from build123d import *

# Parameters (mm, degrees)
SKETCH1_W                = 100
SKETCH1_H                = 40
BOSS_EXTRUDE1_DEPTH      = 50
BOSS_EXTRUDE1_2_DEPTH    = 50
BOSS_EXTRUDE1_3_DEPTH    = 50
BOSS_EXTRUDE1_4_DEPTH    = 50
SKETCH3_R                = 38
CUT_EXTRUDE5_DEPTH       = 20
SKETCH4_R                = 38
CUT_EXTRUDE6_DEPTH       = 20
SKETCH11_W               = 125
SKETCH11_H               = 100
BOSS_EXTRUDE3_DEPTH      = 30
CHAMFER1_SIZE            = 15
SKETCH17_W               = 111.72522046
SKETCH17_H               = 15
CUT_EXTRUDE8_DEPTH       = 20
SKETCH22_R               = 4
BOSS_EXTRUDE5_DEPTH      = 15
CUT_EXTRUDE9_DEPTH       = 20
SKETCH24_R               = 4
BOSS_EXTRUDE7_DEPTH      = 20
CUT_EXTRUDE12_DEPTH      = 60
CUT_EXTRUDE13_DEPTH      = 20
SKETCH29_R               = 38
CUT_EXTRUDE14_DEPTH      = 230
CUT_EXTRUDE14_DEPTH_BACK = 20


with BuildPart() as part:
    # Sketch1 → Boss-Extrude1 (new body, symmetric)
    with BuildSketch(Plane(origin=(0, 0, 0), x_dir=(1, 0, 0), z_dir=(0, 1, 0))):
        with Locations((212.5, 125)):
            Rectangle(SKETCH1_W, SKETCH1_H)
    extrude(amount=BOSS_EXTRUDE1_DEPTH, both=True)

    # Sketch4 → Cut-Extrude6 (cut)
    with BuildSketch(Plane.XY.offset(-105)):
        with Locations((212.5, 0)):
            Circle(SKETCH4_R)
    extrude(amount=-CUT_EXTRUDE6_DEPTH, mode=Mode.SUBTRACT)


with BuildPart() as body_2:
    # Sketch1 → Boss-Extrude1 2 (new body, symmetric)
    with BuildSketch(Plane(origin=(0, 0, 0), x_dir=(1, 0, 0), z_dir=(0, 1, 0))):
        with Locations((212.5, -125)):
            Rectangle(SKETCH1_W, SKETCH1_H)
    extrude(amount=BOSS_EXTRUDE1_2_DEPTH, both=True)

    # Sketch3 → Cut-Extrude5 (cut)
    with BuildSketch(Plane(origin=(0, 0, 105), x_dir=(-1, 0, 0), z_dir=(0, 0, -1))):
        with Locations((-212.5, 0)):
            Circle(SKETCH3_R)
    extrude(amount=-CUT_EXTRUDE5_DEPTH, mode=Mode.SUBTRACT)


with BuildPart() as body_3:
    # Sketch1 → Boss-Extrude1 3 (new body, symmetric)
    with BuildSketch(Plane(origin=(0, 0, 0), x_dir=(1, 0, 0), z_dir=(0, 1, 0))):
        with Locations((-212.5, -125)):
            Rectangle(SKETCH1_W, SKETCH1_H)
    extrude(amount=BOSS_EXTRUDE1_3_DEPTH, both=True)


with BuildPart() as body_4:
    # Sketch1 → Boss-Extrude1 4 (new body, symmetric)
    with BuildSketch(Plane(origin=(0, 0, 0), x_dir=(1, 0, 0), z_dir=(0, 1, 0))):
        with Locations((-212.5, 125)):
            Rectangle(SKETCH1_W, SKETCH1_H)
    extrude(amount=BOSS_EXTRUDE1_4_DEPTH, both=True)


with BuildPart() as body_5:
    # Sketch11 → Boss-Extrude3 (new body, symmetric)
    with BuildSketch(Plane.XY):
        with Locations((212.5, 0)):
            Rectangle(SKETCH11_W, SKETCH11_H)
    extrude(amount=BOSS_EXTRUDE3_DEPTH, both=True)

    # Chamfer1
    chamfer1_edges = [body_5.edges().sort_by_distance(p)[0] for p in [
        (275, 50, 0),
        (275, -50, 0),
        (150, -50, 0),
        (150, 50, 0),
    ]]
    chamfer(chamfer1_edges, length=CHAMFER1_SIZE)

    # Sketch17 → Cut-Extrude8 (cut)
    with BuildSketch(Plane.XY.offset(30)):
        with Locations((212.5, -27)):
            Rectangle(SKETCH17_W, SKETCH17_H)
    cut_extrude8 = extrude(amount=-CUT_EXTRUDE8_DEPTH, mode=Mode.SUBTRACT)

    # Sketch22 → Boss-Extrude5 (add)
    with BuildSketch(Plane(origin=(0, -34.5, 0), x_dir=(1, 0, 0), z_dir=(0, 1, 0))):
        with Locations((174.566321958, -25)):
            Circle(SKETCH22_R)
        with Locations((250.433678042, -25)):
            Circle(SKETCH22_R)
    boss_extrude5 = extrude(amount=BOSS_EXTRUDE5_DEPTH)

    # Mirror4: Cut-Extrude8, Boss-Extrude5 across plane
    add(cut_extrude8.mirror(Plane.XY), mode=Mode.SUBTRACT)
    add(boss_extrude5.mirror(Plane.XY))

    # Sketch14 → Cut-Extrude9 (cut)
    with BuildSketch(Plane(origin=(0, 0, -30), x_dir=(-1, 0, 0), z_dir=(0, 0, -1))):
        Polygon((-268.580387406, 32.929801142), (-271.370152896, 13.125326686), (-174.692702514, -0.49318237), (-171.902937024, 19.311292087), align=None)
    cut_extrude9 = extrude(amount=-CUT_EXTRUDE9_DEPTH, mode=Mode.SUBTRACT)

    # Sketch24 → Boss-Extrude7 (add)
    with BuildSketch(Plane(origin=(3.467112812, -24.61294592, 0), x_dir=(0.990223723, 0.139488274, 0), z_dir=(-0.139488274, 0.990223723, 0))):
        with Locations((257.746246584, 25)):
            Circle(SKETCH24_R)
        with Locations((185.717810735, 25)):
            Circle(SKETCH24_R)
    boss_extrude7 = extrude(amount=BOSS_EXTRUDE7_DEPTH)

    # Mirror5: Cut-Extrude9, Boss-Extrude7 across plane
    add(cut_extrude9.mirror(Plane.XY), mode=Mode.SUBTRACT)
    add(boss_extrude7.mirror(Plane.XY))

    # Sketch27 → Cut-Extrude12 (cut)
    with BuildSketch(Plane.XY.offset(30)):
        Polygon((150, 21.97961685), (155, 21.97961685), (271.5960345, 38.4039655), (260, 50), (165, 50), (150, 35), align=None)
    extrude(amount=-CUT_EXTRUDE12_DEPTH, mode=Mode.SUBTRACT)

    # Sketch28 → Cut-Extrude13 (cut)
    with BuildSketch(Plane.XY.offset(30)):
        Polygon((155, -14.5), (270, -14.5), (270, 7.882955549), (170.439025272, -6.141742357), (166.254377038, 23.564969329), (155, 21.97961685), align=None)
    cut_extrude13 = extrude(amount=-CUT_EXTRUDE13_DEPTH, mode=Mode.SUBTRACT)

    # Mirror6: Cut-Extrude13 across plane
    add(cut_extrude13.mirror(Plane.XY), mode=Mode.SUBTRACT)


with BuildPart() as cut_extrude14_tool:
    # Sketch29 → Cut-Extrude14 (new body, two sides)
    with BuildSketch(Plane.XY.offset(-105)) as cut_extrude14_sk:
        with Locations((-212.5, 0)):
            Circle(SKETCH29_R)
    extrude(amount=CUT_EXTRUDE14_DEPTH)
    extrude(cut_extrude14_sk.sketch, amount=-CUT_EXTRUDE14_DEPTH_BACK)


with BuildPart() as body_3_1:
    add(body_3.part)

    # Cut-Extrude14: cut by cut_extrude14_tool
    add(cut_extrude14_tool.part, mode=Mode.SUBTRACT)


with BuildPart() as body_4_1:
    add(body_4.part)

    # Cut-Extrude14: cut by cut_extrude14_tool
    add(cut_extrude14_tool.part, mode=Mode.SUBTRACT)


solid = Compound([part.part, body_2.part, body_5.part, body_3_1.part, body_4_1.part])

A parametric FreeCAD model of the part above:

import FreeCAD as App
import Part
import Sketcher
Q = App.Units.Quantity


def edges_at(feature, points):
    """Names of the edges that pass closest to the given points."""
    edges = feature.Shape.Edges
    near = lambda p: min(range(len(edges)), key=lambda i: edges[i].distToShape(Part.Vertex(*p))[0])
    return sorted({f"Edge{near(p) + 1}" for p in points})

doc = App.newDocument("Part")
params = doc.addObject("Spreadsheet::Sheet", "Params")
for row, (alias, value) in enumerate([
    ("sketch1_width", "100 mm"),
    ("sketch1_height", "40 mm"),
    ("pad1_length", "100 mm"),
    ("sketch2_diameter", "76 mm"),
    ("pocket1_length", "20 mm"),
    ("sketch3_width", "100 mm"),
    ("sketch3_height", "40 mm"),
    ("pad2_length", "100 mm"),
    ("sketch4_diameter", "76 mm"),
    ("pocket2_length", "20 mm"),
    ("sketch5_width", "100 mm"),
    ("sketch5_height", "40 mm"),
    ("pad3_length", "100 mm"),
    ("sketch6_width", "100 mm"),
    ("sketch6_height", "40 mm"),
    ("pad4_length", "100 mm"),
    ("sketch7_width", "125 mm"),
    ("sketch7_height", "100 mm"),
    ("pad5_length", "60 mm"),
    ("chamfer_size", "15 mm"),
    ("sketch8_height", "15 mm"),
    ("pocket3_length", "20 mm"),
    ("sketch9_diameter", "8 mm"),
    ("pad6_length", "15 mm"),
    ("sketch10_length", "20 mm"),
    ("pocket4_length", "20 mm"),
    ("sketch11_diameter", "8 mm"),
    ("pad7_length", "20 mm"),
    ("sketch12_width", "5 mm"),
    ("sketch12_width2", "95 mm"),
    ("pocket5_length", "60 mm"),
    ("sketch13_width", "115 mm"),
    ("sketch13_length", "30 mm"),
    ("pocket6_length", "20 mm"),
    ("sketch14_diameter", "76 mm"),
    ("pad8_length", "230 mm"),
    ("pad8_length2", "20 mm"),
], start=1):
    params.set(f"A{row}", alias)
    params.set(f"B{row}", "=" + value)
    params.setAlias(f"B{row}", alias)

body = doc.addObject("PartDesign::Body", "Body")

sketch1 = body.newObject("Sketcher::SketchObject", "Sketch")
sketch1.AttachmentSupport = (doc.getObject("XZ_Plane"), [""])
sketch1.MapMode = "FlatFace"
sketch1.addGeometry(Part.LineSegment(App.Vector(162, -145, 0), App.Vector(162, -105, 0)), False)
sketch1.addGeometry(Part.LineSegment(App.Vector(162, -105, 0), App.Vector(262, -105, 0)), False)
sketch1.addGeometry(Part.LineSegment(App.Vector(262, -105, 0), App.Vector(262, -145, 0)), False)
sketch1.addGeometry(Part.LineSegment(App.Vector(262, -145, 0), App.Vector(162, -145, 0)), False)
sketch1.addConstraint(Sketcher.Constraint("Coincident", 0, 2, 1, 1))
sketch1.addConstraint(Sketcher.Constraint("Coincident", 1, 2, 2, 1))
sketch1.addConstraint(Sketcher.Constraint("Coincident", 2, 2, 3, 1))
sketch1.addConstraint(Sketcher.Constraint("Coincident", 3, 2, 0, 1))
sketch1.addConstraint(Sketcher.Constraint("Vertical", 0))
sketch1.addConstraint(Sketcher.Constraint("Horizontal", 1))
sketch1.addConstraint(Sketcher.Constraint("Vertical", 2))
sketch1.addConstraint(Sketcher.Constraint("Horizontal", 3))
sketch1.addConstraint(Sketcher.Constraint("DistanceX", 1, 1, 1, 2, 100.0))
sketch1.addConstraint(Sketcher.Constraint("DistanceY", 0, 1, 0, 2, 40.0))
sketch1.addConstraint(Sketcher.Constraint("DistanceY", 0, 2, -1, 1, 105.0))
sketch1.addConstraint(Sketcher.Constraint("DistanceX", -1, 1, 0, 2, 162.5))
sketch1.setExpression("Constraints[8]", "Params.sketch1_width")
sketch1.setExpression("Constraints[9]", "Params.sketch1_height")
pad1 = body.newObject("PartDesign::Pad", "Pad")
pad1.Profile = sketch1
pad1.setExpression("Length", "Params.pad1_length")
pad1.Midplane = True

sketch2 = body.newObject("Sketcher::SketchObject", "Sketch001")
sketch2.AttachmentSupport = (doc.getObject("XY_Plane"), [""])
sketch2.MapMode = "FlatFace"
sketch2.AttachmentOffset = App.Placement(App.Vector(0, 0, -105), App.Rotation())
sketch2.addGeometry(Part.Circle(App.Vector(212, 0, 0), App.Vector(0, 0, 1), 38), False)
sketch2.addConstraint(Sketcher.Constraint("PointOnObject", 0, 3, -1))
sketch2.addConstraint(Sketcher.Constraint("Diameter", 0, 76.0))
sketch2.addConstraint(Sketcher.Constraint("DistanceX", -1, 1, 0, 3, 212.5))
sketch2.setExpression("Constraints[1]", "Params.sketch2_diameter")
pocket1 = body.newObject("PartDesign::Pocket", "Pocket")
pocket1.Profile = sketch2
pocket1.setExpression("Length", "Params.pocket1_length")
body2 = doc.addObject("PartDesign::Body", "Body001")

sketch3 = body2.newObject("Sketcher::SketchObject", "Sketch002")
sketch3.AttachmentSupport = (doc.getObject("XZ_Plane001"), [""])
sketch3.MapMode = "FlatFace"
sketch3.addGeometry(Part.LineSegment(App.Vector(162, 105, 0), App.Vector(162, 145, 0)), False)
sketch3.addGeometry(Part.LineSegment(App.Vector(162, 145, 0), App.Vector(262, 145, 0)), False)
sketch3.addGeometry(Part.LineSegment(App.Vector(262, 145, 0), App.Vector(262, 105, 0)), False)
sketch3.addGeometry(Part.LineSegment(App.Vector(262, 105, 0), App.Vector(162, 105, 0)), False)
sketch3.addConstraint(Sketcher.Constraint("Coincident", 0, 2, 1, 1))
sketch3.addConstraint(Sketcher.Constraint("Coincident", 1, 2, 2, 1))
sketch3.addConstraint(Sketcher.Constraint("Coincident", 2, 2, 3, 1))
sketch3.addConstraint(Sketcher.Constraint("Coincident", 3, 2, 0, 1))
sketch3.addConstraint(Sketcher.Constraint("Vertical", 0))
sketch3.addConstraint(Sketcher.Constraint("Horizontal", 1))
sketch3.addConstraint(Sketcher.Constraint("Vertical", 2))
sketch3.addConstraint(Sketcher.Constraint("Horizontal", 3))
sketch3.addConstraint(Sketcher.Constraint("DistanceX", 1, 1, 1, 2, 100.0))
sketch3.addConstraint(Sketcher.Constraint("DistanceY", 0, 1, 0, 2, 40.0))
sketch3.addConstraint(Sketcher.Constraint("DistanceY", -1, 1, 0, 2, 145.0))
sketch3.addConstraint(Sketcher.Constraint("DistanceX", -1, 1, 0, 2, 162.5))
sketch3.setExpression("Constraints[8]", "Params.sketch3_width")
sketch3.setExpression("Constraints[9]", "Params.sketch3_height")
pad2 = body2.newObject("PartDesign::Pad", "Pad001")
pad2.Profile = sketch3
pad2.setExpression("Length", "Params.pad2_length")
pad2.Midplane = True

sketch4 = body2.newObject("Sketcher::SketchObject", "Sketch003")
sketch4.AttachmentSupport = (doc.getObject("XY_Plane001"), [""])
sketch4.MapMode = "FlatFace"
sketch4.AttachmentOffset = App.Placement(App.Vector(0, 0, 105), App.Rotation())
sketch4.addGeometry(Part.Circle(App.Vector(212, 0, 0), App.Vector(0, 0, 1), 38), False)
sketch4.addConstraint(Sketcher.Constraint("PointOnObject", 0, 3, -1))
sketch4.addConstraint(Sketcher.Constraint("Diameter", 0, 76.0))
sketch4.addConstraint(Sketcher.Constraint("DistanceX", -1, 1, 0, 3, 212.5))
sketch4.setExpression("Constraints[1]", "Params.sketch4_diameter")
pocket2 = body2.newObject("PartDesign::Pocket", "Pocket001")
pocket2.Profile = sketch4
pocket2.setExpression("Length", "Params.pocket2_length")
pocket2.Reversed = True
body3 = doc.addObject("PartDesign::Body", "Body002")

sketch5 = body3.newObject("Sketcher::SketchObject", "Sketch004")
sketch5.AttachmentSupport = (doc.getObject("XZ_Plane002"), [""])
sketch5.MapMode = "FlatFace"
sketch5.addGeometry(Part.LineSegment(App.Vector(-262, 105, 0), App.Vector(-262, 145, 0)), False)
sketch5.addGeometry(Part.LineSegment(App.Vector(-262, 145, 0), App.Vector(-162, 145, 0)), False)
sketch5.addGeometry(Part.LineSegment(App.Vector(-162, 145, 0), App.Vector(-162, 105, 0)), False)
sketch5.addGeometry(Part.LineSegment(App.Vector(-162, 105, 0), App.Vector(-262, 105, 0)), False)
sketch5.addConstraint(Sketcher.Constraint("Coincident", 0, 2, 1, 1))
sketch5.addConstraint(Sketcher.Constraint("Coincident", 1, 2, 2, 1))
sketch5.addConstraint(Sketcher.Constraint("Coincident", 2, 2, 3, 1))
sketch5.addConstraint(Sketcher.Constraint("Coincident", 3, 2, 0, 1))
sketch5.addConstraint(Sketcher.Constraint("Vertical", 0))
sketch5.addConstraint(Sketcher.Constraint("Horizontal", 1))
sketch5.addConstraint(Sketcher.Constraint("Vertical", 2))
sketch5.addConstraint(Sketcher.Constraint("Horizontal", 3))
sketch5.addConstraint(Sketcher.Constraint("DistanceX", 1, 1, 1, 2, 100.0))
sketch5.addConstraint(Sketcher.Constraint("DistanceY", 0, 1, 0, 2, 40.0))
sketch5.addConstraint(Sketcher.Constraint("DistanceY", -1, 1, 0, 2, 145.0))
sketch5.addConstraint(Sketcher.Constraint("DistanceX", 0, 2, -1, 1, 262.5))
sketch5.setExpression("Constraints[8]", "Params.sketch5_width")
sketch5.setExpression("Constraints[9]", "Params.sketch5_height")
pad3 = body3.newObject("PartDesign::Pad", "Pad002")
pad3.Profile = sketch5
pad3.setExpression("Length", "Params.pad3_length")
pad3.Midplane = True
body4 = doc.addObject("PartDesign::Body", "Body003")

sketch6 = body4.newObject("Sketcher::SketchObject", "Sketch005")
sketch6.AttachmentSupport = (doc.getObject("XZ_Plane003"), [""])
sketch6.MapMode = "FlatFace"
sketch6.addGeometry(Part.LineSegment(App.Vector(-262, -145, 0), App.Vector(-262, -105, 0)), False)
sketch6.addGeometry(Part.LineSegment(App.Vector(-262, -105, 0), App.Vector(-162, -105, 0)), False)
sketch6.addGeometry(Part.LineSegment(App.Vector(-162, -105, 0), App.Vector(-162, -145, 0)), False)
sketch6.addGeometry(Part.LineSegment(App.Vector(-162, -145, 0), App.Vector(-262, -145, 0)), False)
sketch6.addConstraint(Sketcher.Constraint("Coincident", 0, 2, 1, 1))
sketch6.addConstraint(Sketcher.Constraint("Coincident", 1, 2, 2, 1))
sketch6.addConstraint(Sketcher.Constraint("Coincident", 2, 2, 3, 1))
sketch6.addConstraint(Sketcher.Constraint("Coincident", 3, 2, 0, 1))
sketch6.addConstraint(Sketcher.Constraint("Vertical", 0))
sketch6.addConstraint(Sketcher.Constraint("Horizontal", 1))
sketch6.addConstraint(Sketcher.Constraint("Vertical", 2))
sketch6.addConstraint(Sketcher.Constraint("Horizontal", 3))
sketch6.addConstraint(Sketcher.Constraint("DistanceX", 1, 1, 1, 2, 100.0))
sketch6.addConstraint(Sketcher.Constraint("DistanceY", 0, 1, 0, 2, 40.0))
sketch6.addConstraint(Sketcher.Constraint("DistanceY", 0, 2, -1, 1, 105.0))
sketch6.addConstraint(Sketcher.Constraint("DistanceX", 0, 2, -1, 1, 262.5))
sketch6.setExpression("Constraints[8]", "Params.sketch6_width")
sketch6.setExpression("Constraints[9]", "Params.sketch6_height")
pad4 = body4.newObject("PartDesign::Pad", "Pad003")
pad4.Profile = sketch6
pad4.setExpression("Length", "Params.pad4_length")
pad4.Midplane = True
body5 = doc.addObject("PartDesign::Body", "Body004")

sketch7 = body5.newObject("Sketcher::SketchObject", "Sketch006")
sketch7.AttachmentSupport = (doc.getObject("XY_Plane004"), [""])
sketch7.MapMode = "FlatFace"
sketch7.addGeometry(Part.LineSegment(App.Vector(150, 50, 0), App.Vector(150, -50, 0)), False)
sketch7.addGeometry(Part.LineSegment(App.Vector(150, -50, 0), App.Vector(275, -50, 0)), False)
sketch7.addGeometry(Part.LineSegment(App.Vector(275, -50, 0), App.Vector(275, 50, 0)), False)
sketch7.addGeometry(Part.LineSegment(App.Vector(275, 50, 0), App.Vector(150, 50, 0)), False)
sketch7.addConstraint(Sketcher.Constraint("Coincident", 0, 2, 1, 1))
sketch7.addConstraint(Sketcher.Constraint("Coincident", 1, 2, 2, 1))
sketch7.addConstraint(Sketcher.Constraint("Coincident", 2, 2, 3, 1))
sketch7.addConstraint(Sketcher.Constraint("Coincident", 3, 2, 0, 1))
sketch7.addConstraint(Sketcher.Constraint("Vertical", 0))
sketch7.addConstraint(Sketcher.Constraint("Horizontal", 1))
sketch7.addConstraint(Sketcher.Constraint("Vertical", 2))
sketch7.addConstraint(Sketcher.Constraint("Horizontal", 3))
sketch7.addConstraint(Sketcher.Constraint("DistanceX", 1, 1, 1, 2, 125.0))
sketch7.addConstraint(Sketcher.Constraint("DistanceY", 0, 2, 0, 1, 100.0))
sketch7.addConstraint(Sketcher.Constraint("DistanceX", -1, 1, 0, 2, 150.0))
sketch7.addConstraint(Sketcher.Constraint("DistanceY", 0, 2, -1, 1, 50.0))
sketch7.setExpression("Constraints[8]", "Params.sketch7_width")
sketch7.setExpression("Constraints[9]", "Params.sketch7_height")
pad5 = body5.newObject("PartDesign::Pad", "Pad004")
pad5.Profile = sketch7
pad5.setExpression("Length", "Params.pad5_length")
pad5.Midplane = True
doc.recompute()

chamfer = body5.newObject("PartDesign::Chamfer", "Chamfer")
chamfer.Base = (pad5, edges_at(pad5, [
    (275, 50, 0),
    (275, -50, 0),
    (150, -50, 0),
    (150, 50, 0),
]))
chamfer.setExpression("Size", "Params.chamfer_size")

sketch8 = body5.newObject("Sketcher::SketchObject", "Sketch007")
sketch8.AttachmentSupport = (doc.getObject("XY_Plane004"), [""])
sketch8.MapMode = "FlatFace"
sketch8.AttachmentOffset = App.Placement(App.Vector(0, 0, 30), App.Rotation())
sketch8.addGeometry(Part.LineSegment(App.Vector(157, -20, 0), App.Vector(157, -34, 0)), False)
sketch8.addGeometry(Part.LineSegment(App.Vector(157, -34, 0), App.Vector(268, -34, 0)), False)
sketch8.addGeometry(Part.LineSegment(App.Vector(268, -34, 0), App.Vector(268, -20, 0)), False)
sketch8.addGeometry(Part.LineSegment(App.Vector(268, -20, 0), App.Vector(157, -20, 0)), False)
sketch8.addConstraint(Sketcher.Constraint("Coincident", 0, 2, 1, 1))
sketch8.addConstraint(Sketcher.Constraint("Coincident", 1, 2, 2, 1))
sketch8.addConstraint(Sketcher.Constraint("Coincident", 2, 2, 3, 1))
sketch8.addConstraint(Sketcher.Constraint("Coincident", 3, 2, 0, 1))
sketch8.addConstraint(Sketcher.Constraint("Vertical", 0))
sketch8.addConstraint(Sketcher.Constraint("Horizontal", 1))
sketch8.addConstraint(Sketcher.Constraint("Vertical", 2))
sketch8.addConstraint(Sketcher.Constraint("Horizontal", 3))
sketch8.addConstraint(Sketcher.Constraint("DistanceY", 0, 2, 0, 1, 15.0))
sketch8.addConstraint(Sketcher.Constraint("DistanceY", 0, 2, -1, 1, 34.5))
sketch8.addConstraint(Sketcher.Constraint("DistanceX", 1, 1, 1, 2, 111.72522))
sketch8.addConstraint(Sketcher.Constraint("DistanceX", -1, 1, 0, 2, 156.63739))
sketch8.setExpression("Constraints[8]", "Params.sketch8_height")
pocket3 = body5.newObject("PartDesign::Pocket", "Pocket002")
pocket3.Profile = sketch8
pocket3.setExpression("Length", "Params.pocket3_length")

sketch9 = body5.newObject("Sketcher::SketchObject", "Sketch008")
sketch9.AttachmentSupport = (doc.getObject("XZ_Plane004"), [""])
sketch9.MapMode = "FlatFace"
sketch9.AttachmentOffset = App.Placement(App.Vector(0, 0, 34.5), App.Rotation())
sketch9.addGeometry(Part.Circle(App.Vector(174.6, 25, 0), App.Vector(0, 0, 1), 4), False)
sketch9.addGeometry(Part.Circle(App.Vector(250.4, 25, 0), App.Vector(0, 0, 1), 4), False)
sketch9.addConstraint(Sketcher.Constraint("Equal", 0, 1))
sketch9.addConstraint(Sketcher.Constraint("Horizontal", 0, 3, 1, 3))
sketch9.addConstraint(Sketcher.Constraint("Diameter", 0, 8.0))
sketch9.addConstraint(Sketcher.Constraint("DistanceY", -1, 1, 0, 3, 25.0))
sketch9.addConstraint(Sketcher.Constraint("DistanceX", -1, 1, 0, 3, 174.566322))
sketch9.addConstraint(Sketcher.Constraint("DistanceX", -1, 1, 1, 3, 250.433678))
sketch9.setExpression("Constraints[2]", "Params.sketch9_diameter")
pad6 = body5.newObject("PartDesign::Pad", "Pad005")
pad6.Profile = sketch9
pad6.setExpression("Length", "Params.pad6_length")
pad6.Reversed = True
doc.recompute()

mirrored = body5.newObject("PartDesign::Mirrored", "Mirrored")
mirrored.Originals = [pocket3, pad6]
mirrored.MirrorPlane = (doc.getObject("XY_Plane004"), [""])
body5.Tip = mirrored

sketch10 = body5.newObject("Sketcher::SketchObject", "Sketch009")
sketch10.AttachmentSupport = (doc.getObject("XY_Plane004"), [""])
sketch10.MapMode = "FlatFace"
sketch10.AttachmentOffset = App.Placement(App.Vector(0, 0, -30), App.Rotation())
sketch10.addGeometry(Part.LineSegment(App.Vector(269, 33, 0), App.Vector(271, 13, 0)), False)
sketch10.addGeometry(Part.LineSegment(App.Vector(271, 13, 0), App.Vector(175, 0, 0)), False)
sketch10.addGeometry(Part.LineSegment(App.Vector(175, 0, 0), App.Vector(172, 19, 0)), False)
sketch10.addGeometry(Part.LineSegment(App.Vector(172, 19, 0), App.Vector(269, 33, 0)), False)
sketch10.addConstraint(Sketcher.Constraint("Coincident", 0, 2, 1, 1))
sketch10.addConstraint(Sketcher.Constraint("Coincident", 1, 2, 2, 1))
sketch10.addConstraint(Sketcher.Constraint("Coincident", 2, 2, 3, 1))
sketch10.addConstraint(Sketcher.Constraint("Coincident", 3, 2, 0, 1))
sketch10.addConstraint(Sketcher.Constraint("Perpendicular", 0, 1))
sketch10.addConstraint(Sketcher.Constraint("Perpendicular", 1, 2))
sketch10.addConstraint(Sketcher.Constraint("Perpendicular", 2, 3))
sketch10.addConstraint(Sketcher.Constraint("Distance", 0, 20.0))
sketch10.addConstraint(Sketcher.Constraint("DistanceY", -1, 1, 3, 2, 32.929801))
sketch10.addConstraint(Sketcher.Constraint("DistanceX", 1, 2, 0, 2, 96.67745))
sketch10.addConstraint(Sketcher.Constraint("DistanceY", 1, 2, 0, 2, 13.618509))
sketch10.addConstraint(Sketcher.Constraint("DistanceX", -1, 1, 0, 2, 271.370153))
sketch10.setExpression("Constraints[7]", "Params.sketch10_length")
pocket4 = body5.newObject("PartDesign::Pocket", "Pocket003")
pocket4.Profile = sketch10
pocket4.setExpression("Length", "Params.pocket4_length")
pocket4.Reversed = True

sketch11 = body5.newObject("Sketcher::SketchObject", "Sketch010")
sketch11.Placement = App.Placement(App.Vector(3.467113, -24.612946, 0), App.Rotation(App.Vector(0.990223723, 0.139488274, 0), App.Vector(0, 0, -1), App.Vector(-0.139488274, 0.990223723, 0), "ZXY"))
sketch11.addGeometry(Part.Circle(App.Vector(257.7, 25, 0), App.Vector(0, 0, 1), 4), False)
sketch11.addGeometry(Part.Circle(App.Vector(185.7, 25, 0), App.Vector(0, 0, 1), 4), False)
sketch11.addConstraint(Sketcher.Constraint("Equal", 0, 1))
sketch11.addConstraint(Sketcher.Constraint("Horizontal", 0, 3, 1, 3))
sketch11.addConstraint(Sketcher.Constraint("Diameter", 0, 8.0))
sketch11.addConstraint(Sketcher.Constraint("DistanceY", -1, 1, 0, 3, 25.0))
sketch11.addConstraint(Sketcher.Constraint("DistanceX", -1, 1, 1, 3, 185.717811))
sketch11.addConstraint(Sketcher.Constraint("DistanceX", -1, 1, 0, 3, 257.746247))
sketch11.setExpression("Constraints[2]", "Params.sketch11_diameter")
pad7 = body5.newObject("PartDesign::Pad", "Pad006")
pad7.Profile = sketch11
pad7.setExpression("Length", "Params.pad7_length")
doc.recompute()

mirrored2 = body5.newObject("PartDesign::Mirrored", "Mirrored001")
mirrored2.Originals = [pocket4, pad7]
mirrored2.MirrorPlane = (doc.getObject("XY_Plane004"), [""])
body5.Tip = mirrored2

sketch12 = body5.newObject("Sketcher::SketchObject", "Sketch011")
sketch12.AttachmentSupport = (doc.getObject("XY_Plane004"), [""])
sketch12.MapMode = "FlatFace"
sketch12.AttachmentOffset = App.Placement(App.Vector(0, 0, 30), App.Rotation())
sketch12.addGeometry(Part.LineSegment(App.Vector(150, 22, 0), App.Vector(155, 22, 0)), False)
sketch12.addGeometry(Part.LineSegment(App.Vector(155, 22, 0), App.Vector(272, 38, 0)), False)
sketch12.addGeometry(Part.LineSegment(App.Vector(272, 38, 0), App.Vector(260, 50, 0)), False)
sketch12.addGeometry(Part.LineSegment(App.Vector(260, 50, 0), App.Vector(165, 50, 0)), False)
sketch12.addGeometry(Part.LineSegment(App.Vector(165, 50, 0), App.Vector(150, 35, 0)), False)
sketch12.addGeometry(Part.LineSegment(App.Vector(150, 35, 0), App.Vector(150, 22, 0)), False)
sketch12.addConstraint(Sketcher.Constraint("Coincident", 0, 2, 1, 1))
sketch12.addConstraint(Sketcher.Constraint("Coincident", 1, 2, 2, 1))
sketch12.addConstraint(Sketcher.Constraint("Coincident", 2, 2, 3, 1))
sketch12.addConstraint(Sketcher.Constraint("Coincident", 3, 2, 4, 1))
sketch12.addConstraint(Sketcher.Constraint("Coincident", 4, 2, 5, 1))
sketch12.addConstraint(Sketcher.Constraint("Coincident", 5, 2, 0, 1))
sketch12.addConstraint(Sketcher.Constraint("Horizontal", 0))
sketch12.addConstraint(Sketcher.Constraint("Horizontal", 3))
sketch12.addConstraint(Sketcher.Constraint("Vertical", 5))
sketch12.addConstraint(Sketcher.Constraint("Perpendicular", 2, 4))
sketch12.addConstraint(Sketcher.Constraint("DistanceX", 0, 1, 0, 2, 5.0))
sketch12.addConstraint(Sketcher.Constraint("DistanceX", 3, 2, 3, 1, 95.0))
sketch12.addConstraint(Sketcher.Constraint("Angle", 2, Q("135 deg")))
sketch12.addConstraint(Sketcher.Constraint("DistanceX", -1, 1, 0, 2, 155.0))
sketch12.addConstraint(Sketcher.Constraint("DistanceX", -1, 1, 2, 2, 260.0))
sketch12.addConstraint(Sketcher.Constraint("DistanceY", -1, 1, 2, 2, 50.0))
sketch12.addConstraint(Sketcher.Constraint("Distance", 2, 16.399269))
sketch12.addConstraint(Sketcher.Constraint("DistanceY", 5, 2, 5, 1, 13.020383))
sketch12.setExpression("Constraints[10]", "Params.sketch12_width")
sketch12.setExpression("Constraints[11]", "Params.sketch12_width2")
pocket5 = body5.newObject("PartDesign::Pocket", "Pocket004")
pocket5.Profile = sketch12
pocket5.setExpression("Length", "Params.pocket5_length")

sketch13 = body5.newObject("Sketcher::SketchObject", "Sketch012")
sketch13.AttachmentSupport = (doc.getObject("XY_Plane004"), [""])
sketch13.MapMode = "FlatFace"
sketch13.AttachmentOffset = App.Placement(App.Vector(0, 0, 30), App.Rotation())
sketch13.addGeometry(Part.LineSegment(App.Vector(155, -14, 0), App.Vector(270, -14, 0)), False)
sketch13.addGeometry(Part.LineSegment(App.Vector(270, -14, 0), App.Vector(270, 8, 0)), False)
sketch13.addGeometry(Part.LineSegment(App.Vector(270, 8, 0), App.Vector(170, -6, 0)), False)
sketch13.addGeometry(Part.LineSegment(App.Vector(170, -6, 0), App.Vector(166, 24, 0)), False)
sketch13.addGeometry(Part.LineSegment(App.Vector(166, 24, 0), App.Vector(155, 22, 0)), False)
sketch13.addGeometry(Part.LineSegment(App.Vector(155, 22, 0), App.Vector(155, -14, 0)), False)
sketch13.addConstraint(Sketcher.Constraint("Coincident", 0, 2, 1, 1))
sketch13.addConstraint(Sketcher.Constraint("Coincident", 1, 2, 2, 1))
sketch13.addConstraint(Sketcher.Constraint("Coincident", 2, 2, 3, 1))
sketch13.addConstraint(Sketcher.Constraint("Coincident", 3, 2, 4, 1))
sketch13.addConstraint(Sketcher.Constraint("Coincident", 4, 2, 5, 1))
sketch13.addConstraint(Sketcher.Constraint("Coincident", 5, 2, 0, 1))
sketch13.addConstraint(Sketcher.Constraint("Horizontal", 0))
sketch13.addConstraint(Sketcher.Constraint("Vertical", 1))
sketch13.addConstraint(Sketcher.Constraint("Vertical", 5))
sketch13.addConstraint(Sketcher.Constraint("Perpendicular", 2, 3))
sketch13.addConstraint(Sketcher.Constraint("Perpendicular", 3, 4))
sketch13.addConstraint(Sketcher.Constraint("DistanceX", 0, 1, 0, 2, 115.0))
sketch13.addConstraint(Sketcher.Constraint("Distance", 3, 30.0))
sketch13.addConstraint(Sketcher.Constraint("DistanceX", -1, 1, 0, 2, 270.0))
sketch13.addConstraint(Sketcher.Constraint("DistanceY", 0, 2, -1, 1, 14.5))
sketch13.addConstraint(Sketcher.Constraint("Distance", 2, 100.54392))
sketch13.addConstraint(Sketcher.Constraint("Distance", 4, 11.365489))
sketch13.addConstraint(Sketcher.Constraint("DistanceY", 1, 1, 1, 2, 22.382956))
sketch13.setExpression("Constraints[11]", "Params.sketch13_width")
sketch13.setExpression("Constraints[12]", "Params.sketch13_length")
pocket6 = body5.newObject("PartDesign::Pocket", "Pocket005")
pocket6.Profile = sketch13
pocket6.setExpression("Length", "Params.pocket6_length")
doc.recompute()

mirrored3 = body5.newObject("PartDesign::Mirrored", "Mirrored002")
mirrored3.Originals = [pocket6]
mirrored3.MirrorPlane = (doc.getObject("XY_Plane004"), [""])
body5.Tip = mirrored3
body6 = doc.addObject("PartDesign::Body", "Body005")

sketch14 = body6.newObject("Sketcher::SketchObject", "Sketch013")
sketch14.AttachmentSupport = (doc.getObject("XY_Plane005"), [""])
sketch14.MapMode = "FlatFace"
sketch14.AttachmentOffset = App.Placement(App.Vector(0, 0, -105), App.Rotation())
sketch14.addGeometry(Part.Circle(App.Vector(-212, 0, 0), App.Vector(0, 0, 1), 38), False)
sketch14.addConstraint(Sketcher.Constraint("PointOnObject", 0, 3, -1))
sketch14.addConstraint(Sketcher.Constraint("Diameter", 0, 76.0))
sketch14.addConstraint(Sketcher.Constraint("DistanceX", 0, 3, -1, 1, 212.5))
sketch14.setExpression("Constraints[1]", "Params.sketch14_diameter")
pad8 = body6.newObject("PartDesign::Pad", "Pad007")
pad8.Profile = sketch14
pad8.Type = "TwoLengths"
pad8.setExpression("Length", "Params.pad8_length")
pad8.setExpression("Length2", "Params.pad8_length2")
doc.recompute()

body7 = doc.addObject("PartDesign::Body", "Body006")
body7.BaseFeature = body6
boolean = body3.newObject("PartDesign::Boolean", "Boolean")
boolean.Type = "Cut"
boolean.addObjects([body7])
doc.recompute()

boolean2 = body4.newObject("PartDesign::Boolean", "Boolean001")
boolean2.Type = "Cut"
boolean2.addObjects([body6])

doc.recompute()
